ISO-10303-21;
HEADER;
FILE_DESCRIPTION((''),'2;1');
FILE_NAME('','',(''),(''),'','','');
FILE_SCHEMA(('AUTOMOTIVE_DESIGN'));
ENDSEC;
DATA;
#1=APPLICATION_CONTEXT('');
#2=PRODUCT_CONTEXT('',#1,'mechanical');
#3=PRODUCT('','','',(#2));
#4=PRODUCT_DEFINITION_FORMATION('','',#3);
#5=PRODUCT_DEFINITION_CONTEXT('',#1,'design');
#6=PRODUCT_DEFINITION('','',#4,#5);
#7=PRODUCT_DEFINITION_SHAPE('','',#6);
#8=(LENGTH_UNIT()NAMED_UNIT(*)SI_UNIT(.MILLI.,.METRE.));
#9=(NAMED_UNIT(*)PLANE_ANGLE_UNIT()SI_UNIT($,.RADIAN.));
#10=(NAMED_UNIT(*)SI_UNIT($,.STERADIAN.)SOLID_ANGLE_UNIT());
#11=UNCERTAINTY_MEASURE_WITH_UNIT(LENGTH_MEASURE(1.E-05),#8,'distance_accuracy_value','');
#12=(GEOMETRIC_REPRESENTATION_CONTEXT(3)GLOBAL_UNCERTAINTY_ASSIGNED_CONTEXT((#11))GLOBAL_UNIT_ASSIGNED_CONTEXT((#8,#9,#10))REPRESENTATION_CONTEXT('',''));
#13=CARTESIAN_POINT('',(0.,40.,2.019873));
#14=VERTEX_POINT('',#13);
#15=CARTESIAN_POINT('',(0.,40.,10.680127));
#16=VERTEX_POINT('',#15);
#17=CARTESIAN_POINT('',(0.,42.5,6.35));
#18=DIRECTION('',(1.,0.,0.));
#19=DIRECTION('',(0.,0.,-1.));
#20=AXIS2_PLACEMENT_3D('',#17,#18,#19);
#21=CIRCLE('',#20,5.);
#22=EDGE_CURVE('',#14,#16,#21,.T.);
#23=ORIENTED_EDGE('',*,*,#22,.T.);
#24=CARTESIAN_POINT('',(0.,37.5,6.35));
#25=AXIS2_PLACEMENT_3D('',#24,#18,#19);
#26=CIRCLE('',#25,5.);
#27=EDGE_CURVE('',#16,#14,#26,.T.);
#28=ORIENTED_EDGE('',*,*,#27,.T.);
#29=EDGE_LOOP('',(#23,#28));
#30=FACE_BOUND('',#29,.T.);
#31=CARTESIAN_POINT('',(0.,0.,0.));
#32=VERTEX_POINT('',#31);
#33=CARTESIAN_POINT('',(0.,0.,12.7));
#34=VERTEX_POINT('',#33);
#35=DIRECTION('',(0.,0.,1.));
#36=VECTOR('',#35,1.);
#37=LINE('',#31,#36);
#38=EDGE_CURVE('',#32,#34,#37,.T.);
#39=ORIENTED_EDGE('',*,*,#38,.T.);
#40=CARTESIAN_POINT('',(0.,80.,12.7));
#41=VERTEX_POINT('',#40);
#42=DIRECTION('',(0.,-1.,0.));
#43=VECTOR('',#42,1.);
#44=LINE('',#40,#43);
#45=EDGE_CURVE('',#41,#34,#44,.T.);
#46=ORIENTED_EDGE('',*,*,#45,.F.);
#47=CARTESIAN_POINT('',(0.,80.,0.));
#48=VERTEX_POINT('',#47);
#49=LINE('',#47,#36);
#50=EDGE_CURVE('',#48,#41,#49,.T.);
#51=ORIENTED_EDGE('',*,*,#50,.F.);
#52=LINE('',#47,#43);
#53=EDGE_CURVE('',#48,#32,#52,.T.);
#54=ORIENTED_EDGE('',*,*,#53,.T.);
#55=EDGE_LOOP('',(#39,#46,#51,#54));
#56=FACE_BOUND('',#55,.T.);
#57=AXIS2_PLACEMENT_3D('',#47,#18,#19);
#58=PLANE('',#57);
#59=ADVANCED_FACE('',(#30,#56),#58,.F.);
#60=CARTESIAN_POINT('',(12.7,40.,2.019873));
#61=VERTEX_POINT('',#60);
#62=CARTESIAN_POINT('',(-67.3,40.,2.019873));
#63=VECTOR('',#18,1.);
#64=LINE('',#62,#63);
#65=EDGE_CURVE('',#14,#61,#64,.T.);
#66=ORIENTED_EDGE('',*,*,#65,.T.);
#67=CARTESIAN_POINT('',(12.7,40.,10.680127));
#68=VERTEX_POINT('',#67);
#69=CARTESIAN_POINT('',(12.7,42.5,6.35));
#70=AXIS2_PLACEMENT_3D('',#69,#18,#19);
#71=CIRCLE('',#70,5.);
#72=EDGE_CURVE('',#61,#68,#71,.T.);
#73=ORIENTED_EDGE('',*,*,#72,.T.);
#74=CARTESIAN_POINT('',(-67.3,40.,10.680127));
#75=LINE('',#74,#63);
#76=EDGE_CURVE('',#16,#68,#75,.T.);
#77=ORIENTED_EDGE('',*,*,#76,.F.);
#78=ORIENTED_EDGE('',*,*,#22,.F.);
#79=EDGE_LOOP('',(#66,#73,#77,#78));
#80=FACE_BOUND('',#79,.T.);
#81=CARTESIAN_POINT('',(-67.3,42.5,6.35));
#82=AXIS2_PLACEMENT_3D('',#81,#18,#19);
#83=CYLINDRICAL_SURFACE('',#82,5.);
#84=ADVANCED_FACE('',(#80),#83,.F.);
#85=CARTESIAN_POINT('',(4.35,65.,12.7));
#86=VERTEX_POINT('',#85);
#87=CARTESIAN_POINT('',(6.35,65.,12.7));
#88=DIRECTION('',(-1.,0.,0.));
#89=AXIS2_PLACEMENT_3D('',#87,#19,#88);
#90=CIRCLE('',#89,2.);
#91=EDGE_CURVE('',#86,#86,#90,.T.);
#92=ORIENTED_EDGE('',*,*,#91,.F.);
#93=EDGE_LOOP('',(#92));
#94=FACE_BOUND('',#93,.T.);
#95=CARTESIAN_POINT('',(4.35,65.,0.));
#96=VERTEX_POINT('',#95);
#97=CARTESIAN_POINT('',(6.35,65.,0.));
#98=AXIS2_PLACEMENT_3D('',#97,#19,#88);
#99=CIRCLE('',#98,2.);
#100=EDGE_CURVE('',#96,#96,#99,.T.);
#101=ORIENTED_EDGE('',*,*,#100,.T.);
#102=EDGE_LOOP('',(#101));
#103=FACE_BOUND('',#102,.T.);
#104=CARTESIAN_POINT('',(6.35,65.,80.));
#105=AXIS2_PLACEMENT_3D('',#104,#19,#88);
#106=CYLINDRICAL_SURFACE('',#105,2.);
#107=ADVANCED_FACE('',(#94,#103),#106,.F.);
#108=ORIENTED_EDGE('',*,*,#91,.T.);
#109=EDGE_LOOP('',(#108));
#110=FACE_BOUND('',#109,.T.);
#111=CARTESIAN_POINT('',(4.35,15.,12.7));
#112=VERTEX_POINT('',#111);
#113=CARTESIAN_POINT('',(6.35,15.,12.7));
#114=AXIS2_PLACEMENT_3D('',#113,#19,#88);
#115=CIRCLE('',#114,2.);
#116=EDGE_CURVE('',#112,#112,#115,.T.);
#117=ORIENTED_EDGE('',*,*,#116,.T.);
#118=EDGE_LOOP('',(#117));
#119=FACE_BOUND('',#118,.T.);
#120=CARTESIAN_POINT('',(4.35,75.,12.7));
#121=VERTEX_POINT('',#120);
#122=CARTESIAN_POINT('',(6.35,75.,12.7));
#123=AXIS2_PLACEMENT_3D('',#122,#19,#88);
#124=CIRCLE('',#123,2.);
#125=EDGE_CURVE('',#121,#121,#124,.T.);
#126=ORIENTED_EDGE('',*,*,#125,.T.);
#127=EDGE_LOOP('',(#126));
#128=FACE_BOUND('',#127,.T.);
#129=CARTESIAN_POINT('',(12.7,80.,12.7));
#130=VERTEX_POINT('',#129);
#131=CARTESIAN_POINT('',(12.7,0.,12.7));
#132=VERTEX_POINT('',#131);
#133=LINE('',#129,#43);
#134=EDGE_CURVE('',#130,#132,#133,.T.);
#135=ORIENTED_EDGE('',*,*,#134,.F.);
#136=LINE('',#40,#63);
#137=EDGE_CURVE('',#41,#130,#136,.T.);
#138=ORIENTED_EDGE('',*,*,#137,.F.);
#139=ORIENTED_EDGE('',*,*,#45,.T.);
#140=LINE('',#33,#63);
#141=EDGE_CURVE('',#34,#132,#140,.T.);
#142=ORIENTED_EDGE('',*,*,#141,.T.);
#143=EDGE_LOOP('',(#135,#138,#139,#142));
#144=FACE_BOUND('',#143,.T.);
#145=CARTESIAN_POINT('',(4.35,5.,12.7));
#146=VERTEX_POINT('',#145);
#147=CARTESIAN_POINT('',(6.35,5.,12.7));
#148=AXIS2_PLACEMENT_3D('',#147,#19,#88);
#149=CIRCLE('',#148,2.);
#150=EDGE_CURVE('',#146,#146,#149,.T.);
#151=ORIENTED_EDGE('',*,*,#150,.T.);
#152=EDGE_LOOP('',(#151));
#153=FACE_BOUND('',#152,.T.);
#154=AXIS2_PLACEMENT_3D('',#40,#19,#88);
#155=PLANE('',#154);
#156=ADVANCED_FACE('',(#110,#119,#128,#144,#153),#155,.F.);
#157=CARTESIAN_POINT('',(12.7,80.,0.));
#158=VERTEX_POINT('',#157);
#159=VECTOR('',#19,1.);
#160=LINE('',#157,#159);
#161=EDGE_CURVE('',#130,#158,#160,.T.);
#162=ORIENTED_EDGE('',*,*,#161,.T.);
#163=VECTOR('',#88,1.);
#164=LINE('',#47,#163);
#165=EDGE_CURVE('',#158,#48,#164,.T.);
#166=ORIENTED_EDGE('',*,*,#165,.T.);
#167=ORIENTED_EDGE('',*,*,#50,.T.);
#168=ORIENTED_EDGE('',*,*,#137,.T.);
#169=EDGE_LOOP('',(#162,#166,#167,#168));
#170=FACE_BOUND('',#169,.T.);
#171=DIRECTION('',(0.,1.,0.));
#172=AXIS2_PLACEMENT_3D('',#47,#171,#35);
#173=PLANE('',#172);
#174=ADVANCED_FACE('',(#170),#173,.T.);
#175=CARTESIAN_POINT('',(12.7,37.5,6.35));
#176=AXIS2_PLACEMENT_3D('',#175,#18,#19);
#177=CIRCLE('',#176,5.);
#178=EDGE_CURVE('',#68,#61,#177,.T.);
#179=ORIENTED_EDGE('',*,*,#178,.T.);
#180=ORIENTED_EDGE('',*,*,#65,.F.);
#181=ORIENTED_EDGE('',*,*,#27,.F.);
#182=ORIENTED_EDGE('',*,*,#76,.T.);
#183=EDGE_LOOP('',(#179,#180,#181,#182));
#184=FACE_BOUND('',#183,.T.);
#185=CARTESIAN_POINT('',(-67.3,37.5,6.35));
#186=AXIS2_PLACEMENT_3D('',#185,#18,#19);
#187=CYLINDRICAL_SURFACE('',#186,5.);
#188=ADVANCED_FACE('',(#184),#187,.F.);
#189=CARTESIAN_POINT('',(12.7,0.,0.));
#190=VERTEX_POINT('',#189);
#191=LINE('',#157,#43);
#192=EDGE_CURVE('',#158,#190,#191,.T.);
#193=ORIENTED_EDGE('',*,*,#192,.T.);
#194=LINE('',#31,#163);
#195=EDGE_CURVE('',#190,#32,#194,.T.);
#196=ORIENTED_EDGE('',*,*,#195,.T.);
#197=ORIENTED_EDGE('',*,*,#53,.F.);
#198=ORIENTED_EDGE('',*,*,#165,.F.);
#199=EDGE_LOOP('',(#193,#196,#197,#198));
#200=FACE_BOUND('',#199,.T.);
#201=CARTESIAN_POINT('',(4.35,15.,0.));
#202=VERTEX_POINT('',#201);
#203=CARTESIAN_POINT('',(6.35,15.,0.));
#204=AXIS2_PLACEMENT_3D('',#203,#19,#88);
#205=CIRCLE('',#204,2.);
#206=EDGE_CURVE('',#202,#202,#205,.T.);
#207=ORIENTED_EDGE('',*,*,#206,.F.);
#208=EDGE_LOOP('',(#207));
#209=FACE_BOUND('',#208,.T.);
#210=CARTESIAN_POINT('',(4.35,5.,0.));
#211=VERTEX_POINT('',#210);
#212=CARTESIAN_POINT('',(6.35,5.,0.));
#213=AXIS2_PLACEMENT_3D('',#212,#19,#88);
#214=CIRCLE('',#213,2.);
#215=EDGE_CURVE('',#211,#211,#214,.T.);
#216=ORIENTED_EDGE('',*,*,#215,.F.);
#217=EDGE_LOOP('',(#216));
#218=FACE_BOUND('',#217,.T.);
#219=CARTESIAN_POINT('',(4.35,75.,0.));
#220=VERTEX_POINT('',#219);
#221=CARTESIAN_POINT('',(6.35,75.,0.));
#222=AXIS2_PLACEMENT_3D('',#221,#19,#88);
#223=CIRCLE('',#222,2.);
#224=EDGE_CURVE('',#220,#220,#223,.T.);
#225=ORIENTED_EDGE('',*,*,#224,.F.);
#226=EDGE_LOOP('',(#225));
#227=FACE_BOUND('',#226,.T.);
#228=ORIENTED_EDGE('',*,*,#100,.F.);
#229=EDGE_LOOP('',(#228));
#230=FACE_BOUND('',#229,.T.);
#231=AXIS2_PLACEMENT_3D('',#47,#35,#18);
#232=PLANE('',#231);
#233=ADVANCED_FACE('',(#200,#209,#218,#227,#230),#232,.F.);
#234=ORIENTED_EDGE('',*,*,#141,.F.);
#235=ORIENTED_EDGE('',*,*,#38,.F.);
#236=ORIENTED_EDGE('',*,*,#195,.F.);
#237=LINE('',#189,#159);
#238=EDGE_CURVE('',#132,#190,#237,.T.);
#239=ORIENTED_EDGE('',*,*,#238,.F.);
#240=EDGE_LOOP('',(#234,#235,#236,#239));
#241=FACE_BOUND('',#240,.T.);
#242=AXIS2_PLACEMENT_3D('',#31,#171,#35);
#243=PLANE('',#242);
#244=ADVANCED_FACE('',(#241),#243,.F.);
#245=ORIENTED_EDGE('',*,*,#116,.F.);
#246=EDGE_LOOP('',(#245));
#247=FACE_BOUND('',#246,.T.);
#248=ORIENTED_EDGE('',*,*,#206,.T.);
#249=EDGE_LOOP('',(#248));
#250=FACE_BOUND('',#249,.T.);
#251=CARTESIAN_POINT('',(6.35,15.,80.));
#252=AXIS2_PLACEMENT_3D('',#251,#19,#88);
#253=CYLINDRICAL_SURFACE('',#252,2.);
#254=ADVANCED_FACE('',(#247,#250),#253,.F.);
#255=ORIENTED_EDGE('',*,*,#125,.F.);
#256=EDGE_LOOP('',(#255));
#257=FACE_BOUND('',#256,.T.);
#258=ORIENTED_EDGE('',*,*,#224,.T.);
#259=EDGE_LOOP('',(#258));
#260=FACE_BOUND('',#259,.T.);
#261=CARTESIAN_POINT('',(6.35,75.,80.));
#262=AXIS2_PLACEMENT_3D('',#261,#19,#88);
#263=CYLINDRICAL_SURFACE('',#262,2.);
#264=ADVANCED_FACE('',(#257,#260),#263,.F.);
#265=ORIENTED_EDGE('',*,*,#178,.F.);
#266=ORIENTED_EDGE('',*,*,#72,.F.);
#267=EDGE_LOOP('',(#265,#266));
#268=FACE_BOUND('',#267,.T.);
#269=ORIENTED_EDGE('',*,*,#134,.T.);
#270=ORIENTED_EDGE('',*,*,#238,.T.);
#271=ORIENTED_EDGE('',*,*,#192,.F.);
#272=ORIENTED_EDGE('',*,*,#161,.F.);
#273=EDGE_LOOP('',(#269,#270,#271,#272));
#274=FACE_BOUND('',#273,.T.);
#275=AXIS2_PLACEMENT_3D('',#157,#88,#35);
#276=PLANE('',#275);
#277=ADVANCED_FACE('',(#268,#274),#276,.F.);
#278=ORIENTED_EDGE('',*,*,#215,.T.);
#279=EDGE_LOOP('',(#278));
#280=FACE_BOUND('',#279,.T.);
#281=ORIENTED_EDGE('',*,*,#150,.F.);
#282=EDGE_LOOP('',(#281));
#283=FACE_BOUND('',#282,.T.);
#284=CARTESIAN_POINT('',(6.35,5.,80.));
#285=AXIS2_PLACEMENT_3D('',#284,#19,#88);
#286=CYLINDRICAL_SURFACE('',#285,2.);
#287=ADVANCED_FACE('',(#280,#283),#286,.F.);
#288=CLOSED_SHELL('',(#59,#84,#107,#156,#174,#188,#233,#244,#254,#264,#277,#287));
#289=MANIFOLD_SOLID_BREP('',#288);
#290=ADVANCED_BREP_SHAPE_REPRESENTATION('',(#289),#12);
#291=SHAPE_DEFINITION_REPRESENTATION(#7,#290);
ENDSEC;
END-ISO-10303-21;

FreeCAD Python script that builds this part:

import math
import FreeCAD as App
import Part
import Sketcher
from FreeCAD import Vector
Q = App.Units.Quantity

doc = App.newDocument("Part")
body = doc.addObject("PartDesign::Body", "Body")

# Sketch on XZ plane
sketch1 = body.newObject("Sketcher::SketchObject", "Sketch")
sketch1.AttachmentSupport = (doc.getObject("XZ_Plane"), [""])
sketch1.MapMode = "FlatFace"
sketch1.addGeometry([
    Part.LineSegment(Vector(0, 0, 0), Vector(0, 13, 0)),
    Part.LineSegment(Vector(0, 13, 0), Vector(13, 13, 0)),
    Part.LineSegment(Vector(13, 13, 0), Vector(13, 0, 0)),
    Part.LineSegment(Vector(13, 0, 0), Vector(0, 0, 0)),
], False)
sketch1.addConstraint([
    Sketcher.Constraint("Coincident", 0, 2, 1, 1),
    Sketcher.Constraint("Coincident", 1, 2, 2, 1),
    Sketcher.Constraint("Coincident", 2, 2, 3, 1),
    Sketcher.Constraint("Coincident", 3, 2, 0, 1),
    Sketcher.Constraint("Vertical", 0),
    Sketcher.Constraint("Horizontal", 1),
    Sketcher.Constraint("Vertical", 2),
    Sketcher.Constraint("Horizontal", 3),
    Sketcher.Constraint("Coincident", 3, 2, -1, 1),
    Sketcher.Constraint("Equal", 3, 0),
    Sketcher.Constraint("DistanceX", 1, 1, 1, 2, Q("12.7 mm")),
])
pad1 = body.newObject("PartDesign::Pad", "Pad")
pad1.Profile = sketch1
pad1.Length = 80
pad1.Reversed = True

# Sketch on YZ plane
sketch2 = body.newObject("Sketcher::SketchObject", "Sketch001")
sketch2.AttachmentSupport = (doc.getObject("YZ_Plane"), [""])
sketch2.MapMode = "FlatFace"
sketch2.AttachmentOffset = App.Placement(Vector(0, 0, 12.7), App.Rotation())
sketch2.addGeometry([
    Part.ArcOfCircle(Part.Circle(Vector(38, 6, 0), Vector(0, 0, 1), 5), math.radians(60), math.radians(300)),
    Part.ArcOfCircle(Part.Circle(Vector(42, 6, 0), Vector(0, 0, 1), 5), math.radians(-120), math.radians(120)),
], False)
sketch2.addConstraint([
    Sketcher.Constraint("Coincident", 0, 1, 1, 2),
    Sketcher.Constraint("Coincident", 1, 1, 0, 2),
    Sketcher.Constraint("Equal", 0, 1),
    Sketcher.Constraint("Horizontal", 0, 3, 1, 3),
    Sketcher.Constraint("Radius", 0, Q("5 mm")),
    Sketcher.Constraint("DistanceX", -1, 1, 0, 1, Q("40 mm")),
    Sketcher.Constraint("DistanceX", 0, 3, 1, 3, Q("5 mm")),
    Sketcher.Constraint("DistanceY", -1, 1, 0, 3, Q("6.35 mm")),
])
pocket1 = body.newObject("PartDesign::Pocket", "Pocket")
pocket1.Profile = sketch2
pocket1.Length = 80

# Sketch on XY plane
sketch3 = body.newObject("Sketcher::SketchObject", "Sketch002")
sketch3.AttachmentSupport = (doc.getObject("XY_Plane"), [""])
sketch3.MapMode = "FlatFace"
sketch3.addGeometry([
    Part.Circle(Vector(6.3, 5, 0), Vector(0, 0, 1), 2),
    Part.Circle(Vector(6.3, 15, 0), Vector(0, 0, 1), 2),
    Part.Circle(Vector(6.3, 75, 0), Vector(0, 0, 1), 2),
    Part.Circle(Vector(6.3, 65, 0), Vector(0, 0, 1), 2),
], False)
sketch3.addConstraint([
    Sketcher.Constraint("Equal", 0, 1),
    Sketcher.Constraint("Equal", 1, 2),
    Sketcher.Constraint("Equal", 2, 3),
    Sketcher.Constraint("Vertical", 0, 3, 1, 3),
    Sketcher.Constraint("Vertical", 1, 3, 2, 3),
    Sketcher.Constraint("Vertical", 2, 3, 3, 3),
    Sketcher.Constraint("Diameter", 0, Q("4 mm")),
    Sketcher.Constraint("DistanceY", -1, 1, 0, 3, Q("5 mm")),
    Sketcher.Constraint("DistanceY", -1, 1, 1, 3, Q("15 mm")),
    Sketcher.Constraint("DistanceY", -1, 1, 2, 3, Q("75 mm")),
    Sketcher.Constraint("DistanceY", -1, 1, 3, 3, Q("65 mm")),
    Sketcher.Constraint("DistanceX", -1, 1, 0, 3, Q("6.35 mm")),
])
pocket2 = body.newObject("PartDesign::Pocket", "Pocket001")
pocket2.Profile = sketch3
pocket2.Length = 80
pocket2.Reversed = True

doc.recompute()
